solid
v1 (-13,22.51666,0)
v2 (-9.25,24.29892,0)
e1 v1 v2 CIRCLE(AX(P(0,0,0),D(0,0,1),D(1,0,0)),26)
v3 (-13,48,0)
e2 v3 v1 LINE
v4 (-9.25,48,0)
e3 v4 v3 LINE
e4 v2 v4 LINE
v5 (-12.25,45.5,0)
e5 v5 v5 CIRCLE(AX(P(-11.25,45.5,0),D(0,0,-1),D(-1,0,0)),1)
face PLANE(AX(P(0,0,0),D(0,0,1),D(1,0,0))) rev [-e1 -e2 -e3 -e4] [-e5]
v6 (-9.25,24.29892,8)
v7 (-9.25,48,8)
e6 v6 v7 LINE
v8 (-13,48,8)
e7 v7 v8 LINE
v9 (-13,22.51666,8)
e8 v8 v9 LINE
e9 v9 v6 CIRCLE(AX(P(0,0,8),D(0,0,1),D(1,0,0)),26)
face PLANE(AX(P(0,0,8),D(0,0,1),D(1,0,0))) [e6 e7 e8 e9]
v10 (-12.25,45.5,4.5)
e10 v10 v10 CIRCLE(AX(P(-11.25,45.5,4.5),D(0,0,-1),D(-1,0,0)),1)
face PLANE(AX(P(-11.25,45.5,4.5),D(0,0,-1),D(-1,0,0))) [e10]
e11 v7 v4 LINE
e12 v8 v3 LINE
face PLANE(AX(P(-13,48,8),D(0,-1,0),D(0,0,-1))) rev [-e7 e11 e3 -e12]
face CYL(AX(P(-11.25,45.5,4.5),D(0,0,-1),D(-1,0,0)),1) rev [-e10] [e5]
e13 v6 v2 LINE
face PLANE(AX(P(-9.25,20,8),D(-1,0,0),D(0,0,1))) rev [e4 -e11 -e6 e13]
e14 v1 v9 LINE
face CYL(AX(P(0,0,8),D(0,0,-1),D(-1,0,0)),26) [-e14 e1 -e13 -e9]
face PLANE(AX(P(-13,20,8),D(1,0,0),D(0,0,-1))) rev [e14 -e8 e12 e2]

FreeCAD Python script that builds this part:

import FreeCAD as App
import Part
import Sketcher

V = App.Vector
Q = App.Units.Quantity


def add_polygon(sketch, points):
    """Adds a closed chain of lines whose ends are joined by coincident constraints."""
    first, n = sketch.GeometryCount, len(points)
    for a, b in zip(points, points[1:] + points[:1]):
        sketch.addGeometry(Part.LineSegment(App.Vector(*a, 0), App.Vector(*b, 0)), False)
    for i in range(n):
        sketch.addConstraint(Sketcher.Constraint("Coincident", first + i, 2, first + (i + 1) % n, 1))

doc = App.newDocument("Part")
params = doc.addObject("Spreadsheet::Sheet", "Params")
for row, (alias, value) in enumerate([
    ("sketch1_diameter", "52 mm"),
    ("pad1_length", "8 mm"),
    ("sketch2_height", "28 mm"),
    ("sketch2_width", "3.75 mm"),
    ("pad2_length", "8 mm"),
    ("sketch3_diameter", "2 mm"),
    ("pocket1_length", "4.5 mm"),
], start=1):
    params.set(f"A{row}", alias)
    params.set(f"B{row}", "=" + value)
    params.setAlias(f"B{row}", alias)

body = doc.addObject("PartDesign::Body", "Body")

# Sketch on XY plane
sketch1 = body.newObject("Sketcher::SketchObject", "Sketch")
sketch1.AttachmentSupport = (doc.getObject("XY_Plane"), [""])
sketch1.MapMode = "FlatFace"
sketch1.addGeometry(Part.Circle(V(0, 0, 0), V(0, 0, 1), 26), False)
sketch1.addConstraint(Sketcher.Constraint("Coincident", 0, 3, -1, 1))
sketch1.addConstraint(Sketcher.Constraint("Diameter", 0, Q("52 mm")))
sketch1.setExpression("Constraints[1]", "Params.sketch1_diameter")
pad1 = body.newObject("PartDesign::Pad", "Pad")
pad1.Profile = sketch1
pad1.setExpression("Length", "Params.pad1_length")

# Sketch on XY plane
sketch2 = body.newObject("Sketcher::SketchObject", "Sketch001")
sketch2.AttachmentSupport = (doc.getObject("XY_Plane"), [""])
sketch2.MapMode = "FlatFace"
add_polygon(sketch2, [(-13, 48), (-13, 20), (-9.2, 20), (-9.2, 48)])  # lines 0-3
sketch2.addConstraint(Sketcher.Constraint("Vertical", 0))
sketch2.addConstraint(Sketcher.Constraint("Horizontal", 1))
sketch2.addConstraint(Sketcher.Constraint("Vertical", 2))
sketch2.addConstraint(Sketcher.Constraint("Horizontal", 3))
sketch2.addConstraint(Sketcher.Constraint("DistanceY", 0, 2, 0, 1, Q("28 mm")))
sketch2.addConstraint(Sketcher.Constraint("DistanceX", 0, 2, -1, 1, Q("13 mm")))
sketch2.addConstraint(Sketcher.Constraint("DistanceY", -1, 1, 0, 2, Q("20 mm")))
sketch2.addConstraint(Sketcher.Constraint("DistanceX", 1, 1, 1, 2, Q("3.75 mm")))
sketch2.setExpression("Constraints[8]", "Params.sketch2_height")
sketch2.setExpression("Constraints[11]", "Params.sketch2_width")
pad2 = body.newObject("PartDesign::Pad", "Pad001")
pad2.Profile = sketch2
pad2.setExpression("Length", "Params.pad2_length")

# Sketch on XY plane
sketch3 = body.newObject("Sketcher::SketchObject", "Sketch002")
sketch3.AttachmentSupport = (doc.getObject("XY_Plane"), [""])
sketch3.MapMode = "FlatFace"
sketch3.addGeometry(Part.Circle(V(-11.2, 45.5, 0), V(0, 0, 1), 1), False)
sketch3.addConstraint(Sketcher.Constraint("Diameter", 0, Q("2 mm")))
sketch3.addConstraint(Sketcher.Constraint("DistanceY", -1, 1, 0, 3, Q("45.5 mm")))
sketch3.addConstraint(Sketcher.Constraint("DistanceX", 0, 3, -1, 1, Q("11.25 mm")))
sketch3.setExpression("Constraints[0]", "Params.sketch3_diameter")
pocket1 = body.newObject("PartDesign::Pocket", "Pocket")
pocket1.Profile = sketch3
pocket1.setExpression("Length", "Params.pocket1_length")
pocket1.Reversed = True

doc.recompute()
